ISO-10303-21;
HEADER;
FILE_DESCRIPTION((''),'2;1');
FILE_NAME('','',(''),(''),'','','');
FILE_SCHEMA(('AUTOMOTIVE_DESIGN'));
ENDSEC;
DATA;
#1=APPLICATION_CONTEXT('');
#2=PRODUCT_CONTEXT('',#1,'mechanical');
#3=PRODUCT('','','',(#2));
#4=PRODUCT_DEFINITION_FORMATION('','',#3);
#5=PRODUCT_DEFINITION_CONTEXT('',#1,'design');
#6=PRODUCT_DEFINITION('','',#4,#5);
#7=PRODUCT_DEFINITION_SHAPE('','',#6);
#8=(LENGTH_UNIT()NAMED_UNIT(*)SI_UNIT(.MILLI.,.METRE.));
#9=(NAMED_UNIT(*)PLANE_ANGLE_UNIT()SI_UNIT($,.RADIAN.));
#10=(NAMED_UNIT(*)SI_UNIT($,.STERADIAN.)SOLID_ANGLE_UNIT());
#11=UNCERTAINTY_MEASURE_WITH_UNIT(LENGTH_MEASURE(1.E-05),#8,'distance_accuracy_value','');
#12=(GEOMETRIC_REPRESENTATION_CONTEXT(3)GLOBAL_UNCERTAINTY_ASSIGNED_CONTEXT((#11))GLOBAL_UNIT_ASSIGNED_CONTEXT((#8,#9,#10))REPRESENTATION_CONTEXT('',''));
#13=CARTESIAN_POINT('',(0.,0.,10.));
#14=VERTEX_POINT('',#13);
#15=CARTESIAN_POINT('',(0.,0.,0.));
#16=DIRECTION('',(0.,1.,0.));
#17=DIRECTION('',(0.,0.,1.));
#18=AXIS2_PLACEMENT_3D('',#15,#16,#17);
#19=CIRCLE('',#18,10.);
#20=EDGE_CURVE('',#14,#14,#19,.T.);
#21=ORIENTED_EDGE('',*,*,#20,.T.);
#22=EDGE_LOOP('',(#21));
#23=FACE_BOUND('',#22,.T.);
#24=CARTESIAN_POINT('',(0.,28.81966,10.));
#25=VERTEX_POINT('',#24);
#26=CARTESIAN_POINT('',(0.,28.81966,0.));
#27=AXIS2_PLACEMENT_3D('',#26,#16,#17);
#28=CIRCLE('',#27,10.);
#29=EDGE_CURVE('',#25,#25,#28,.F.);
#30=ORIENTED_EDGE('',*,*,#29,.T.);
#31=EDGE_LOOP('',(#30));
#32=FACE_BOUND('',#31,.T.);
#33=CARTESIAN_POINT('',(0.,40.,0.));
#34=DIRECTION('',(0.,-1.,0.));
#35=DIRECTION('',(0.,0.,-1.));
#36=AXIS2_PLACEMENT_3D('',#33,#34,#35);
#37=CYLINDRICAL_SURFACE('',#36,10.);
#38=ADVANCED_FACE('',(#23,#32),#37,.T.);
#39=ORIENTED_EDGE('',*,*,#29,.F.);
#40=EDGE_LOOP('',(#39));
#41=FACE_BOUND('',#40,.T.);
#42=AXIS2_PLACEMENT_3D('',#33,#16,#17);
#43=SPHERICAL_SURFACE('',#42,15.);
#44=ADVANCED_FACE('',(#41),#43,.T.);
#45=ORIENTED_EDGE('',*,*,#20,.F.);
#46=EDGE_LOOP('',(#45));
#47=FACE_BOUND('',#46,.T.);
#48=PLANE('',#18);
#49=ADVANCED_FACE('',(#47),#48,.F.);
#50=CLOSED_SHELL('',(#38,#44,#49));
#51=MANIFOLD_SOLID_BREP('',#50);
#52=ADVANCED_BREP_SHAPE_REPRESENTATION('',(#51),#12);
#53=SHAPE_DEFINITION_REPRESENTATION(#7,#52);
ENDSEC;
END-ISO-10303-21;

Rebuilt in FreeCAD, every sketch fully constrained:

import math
import FreeCAD as App
import Part
import Sketcher

V = App.Vector
Q = App.Units.Quantity

doc = App.newDocument("Part")
body = doc.addObject("PartDesign::Body", "Body")

# Sketch on XZ plane
sketch1 = body.newObject("Sketcher::SketchObject", "Sketch")
sketch1.AttachmentSupport = (doc.getObject("XZ_Plane"), [""])
sketch1.MapMode = "FlatFace"
sketch1.addGeometry(Part.Circle(V(0, 0, 0), V(0, 0, 1), 10), False)
sketch1.addConstraint([
    Sketcher.Constraint("Coincident", 0, 3, -1, 1),
    Sketcher.Constraint("Diameter", 0, Q("20 mm")),
])
pad1 = body.newObject("PartDesign::Pad", "Pad")
pad1.Profile = sketch1
pad1.Length = 40
pad1.Reversed = True

# Sketch on XZ plane
sketch2 = body.newObject("Sketcher::SketchObject", "Sketch001")
sketch2.AttachmentSupport = (doc.getObject("XZ_Plane"), [""])
sketch2.MapMode = "FlatFace"
sketch2.AttachmentOffset = App.Placement(V(0, 0, -40), App.Rotation())
sketch2.addGeometry([
    Part.LineSegment(V(0, -15, 0), V(0, 15, 0)),
    Part.ArcOfCircle(Part.Circle(V(0, 0, 0), V(0, 0, 1), 15), math.radians(-90), math.radians(90)),
], False)
sketch2.addConstraint([
    Sketcher.Constraint("Coincident", 0, 1, 1, 1),
    Sketcher.Constraint("Coincident", 1, 2, 0, 2),
    Sketcher.Constraint("Vertical", 0),
    Sketcher.Constraint("Coincident", 1, 3, -1, 1),
    Sketcher.Constraint("PointOnObject", 0, 1, -2),
    Sketcher.Constraint("Radius", 1, Q("15 mm")),
])
revolution = body.newObject("PartDesign::Revolution", "Revolution")
revolution.Profile = sketch2
revolution.ReferenceAxis = (sketch2, ["V_Axis"])
revolution.Angle = 360

doc.recompute()
